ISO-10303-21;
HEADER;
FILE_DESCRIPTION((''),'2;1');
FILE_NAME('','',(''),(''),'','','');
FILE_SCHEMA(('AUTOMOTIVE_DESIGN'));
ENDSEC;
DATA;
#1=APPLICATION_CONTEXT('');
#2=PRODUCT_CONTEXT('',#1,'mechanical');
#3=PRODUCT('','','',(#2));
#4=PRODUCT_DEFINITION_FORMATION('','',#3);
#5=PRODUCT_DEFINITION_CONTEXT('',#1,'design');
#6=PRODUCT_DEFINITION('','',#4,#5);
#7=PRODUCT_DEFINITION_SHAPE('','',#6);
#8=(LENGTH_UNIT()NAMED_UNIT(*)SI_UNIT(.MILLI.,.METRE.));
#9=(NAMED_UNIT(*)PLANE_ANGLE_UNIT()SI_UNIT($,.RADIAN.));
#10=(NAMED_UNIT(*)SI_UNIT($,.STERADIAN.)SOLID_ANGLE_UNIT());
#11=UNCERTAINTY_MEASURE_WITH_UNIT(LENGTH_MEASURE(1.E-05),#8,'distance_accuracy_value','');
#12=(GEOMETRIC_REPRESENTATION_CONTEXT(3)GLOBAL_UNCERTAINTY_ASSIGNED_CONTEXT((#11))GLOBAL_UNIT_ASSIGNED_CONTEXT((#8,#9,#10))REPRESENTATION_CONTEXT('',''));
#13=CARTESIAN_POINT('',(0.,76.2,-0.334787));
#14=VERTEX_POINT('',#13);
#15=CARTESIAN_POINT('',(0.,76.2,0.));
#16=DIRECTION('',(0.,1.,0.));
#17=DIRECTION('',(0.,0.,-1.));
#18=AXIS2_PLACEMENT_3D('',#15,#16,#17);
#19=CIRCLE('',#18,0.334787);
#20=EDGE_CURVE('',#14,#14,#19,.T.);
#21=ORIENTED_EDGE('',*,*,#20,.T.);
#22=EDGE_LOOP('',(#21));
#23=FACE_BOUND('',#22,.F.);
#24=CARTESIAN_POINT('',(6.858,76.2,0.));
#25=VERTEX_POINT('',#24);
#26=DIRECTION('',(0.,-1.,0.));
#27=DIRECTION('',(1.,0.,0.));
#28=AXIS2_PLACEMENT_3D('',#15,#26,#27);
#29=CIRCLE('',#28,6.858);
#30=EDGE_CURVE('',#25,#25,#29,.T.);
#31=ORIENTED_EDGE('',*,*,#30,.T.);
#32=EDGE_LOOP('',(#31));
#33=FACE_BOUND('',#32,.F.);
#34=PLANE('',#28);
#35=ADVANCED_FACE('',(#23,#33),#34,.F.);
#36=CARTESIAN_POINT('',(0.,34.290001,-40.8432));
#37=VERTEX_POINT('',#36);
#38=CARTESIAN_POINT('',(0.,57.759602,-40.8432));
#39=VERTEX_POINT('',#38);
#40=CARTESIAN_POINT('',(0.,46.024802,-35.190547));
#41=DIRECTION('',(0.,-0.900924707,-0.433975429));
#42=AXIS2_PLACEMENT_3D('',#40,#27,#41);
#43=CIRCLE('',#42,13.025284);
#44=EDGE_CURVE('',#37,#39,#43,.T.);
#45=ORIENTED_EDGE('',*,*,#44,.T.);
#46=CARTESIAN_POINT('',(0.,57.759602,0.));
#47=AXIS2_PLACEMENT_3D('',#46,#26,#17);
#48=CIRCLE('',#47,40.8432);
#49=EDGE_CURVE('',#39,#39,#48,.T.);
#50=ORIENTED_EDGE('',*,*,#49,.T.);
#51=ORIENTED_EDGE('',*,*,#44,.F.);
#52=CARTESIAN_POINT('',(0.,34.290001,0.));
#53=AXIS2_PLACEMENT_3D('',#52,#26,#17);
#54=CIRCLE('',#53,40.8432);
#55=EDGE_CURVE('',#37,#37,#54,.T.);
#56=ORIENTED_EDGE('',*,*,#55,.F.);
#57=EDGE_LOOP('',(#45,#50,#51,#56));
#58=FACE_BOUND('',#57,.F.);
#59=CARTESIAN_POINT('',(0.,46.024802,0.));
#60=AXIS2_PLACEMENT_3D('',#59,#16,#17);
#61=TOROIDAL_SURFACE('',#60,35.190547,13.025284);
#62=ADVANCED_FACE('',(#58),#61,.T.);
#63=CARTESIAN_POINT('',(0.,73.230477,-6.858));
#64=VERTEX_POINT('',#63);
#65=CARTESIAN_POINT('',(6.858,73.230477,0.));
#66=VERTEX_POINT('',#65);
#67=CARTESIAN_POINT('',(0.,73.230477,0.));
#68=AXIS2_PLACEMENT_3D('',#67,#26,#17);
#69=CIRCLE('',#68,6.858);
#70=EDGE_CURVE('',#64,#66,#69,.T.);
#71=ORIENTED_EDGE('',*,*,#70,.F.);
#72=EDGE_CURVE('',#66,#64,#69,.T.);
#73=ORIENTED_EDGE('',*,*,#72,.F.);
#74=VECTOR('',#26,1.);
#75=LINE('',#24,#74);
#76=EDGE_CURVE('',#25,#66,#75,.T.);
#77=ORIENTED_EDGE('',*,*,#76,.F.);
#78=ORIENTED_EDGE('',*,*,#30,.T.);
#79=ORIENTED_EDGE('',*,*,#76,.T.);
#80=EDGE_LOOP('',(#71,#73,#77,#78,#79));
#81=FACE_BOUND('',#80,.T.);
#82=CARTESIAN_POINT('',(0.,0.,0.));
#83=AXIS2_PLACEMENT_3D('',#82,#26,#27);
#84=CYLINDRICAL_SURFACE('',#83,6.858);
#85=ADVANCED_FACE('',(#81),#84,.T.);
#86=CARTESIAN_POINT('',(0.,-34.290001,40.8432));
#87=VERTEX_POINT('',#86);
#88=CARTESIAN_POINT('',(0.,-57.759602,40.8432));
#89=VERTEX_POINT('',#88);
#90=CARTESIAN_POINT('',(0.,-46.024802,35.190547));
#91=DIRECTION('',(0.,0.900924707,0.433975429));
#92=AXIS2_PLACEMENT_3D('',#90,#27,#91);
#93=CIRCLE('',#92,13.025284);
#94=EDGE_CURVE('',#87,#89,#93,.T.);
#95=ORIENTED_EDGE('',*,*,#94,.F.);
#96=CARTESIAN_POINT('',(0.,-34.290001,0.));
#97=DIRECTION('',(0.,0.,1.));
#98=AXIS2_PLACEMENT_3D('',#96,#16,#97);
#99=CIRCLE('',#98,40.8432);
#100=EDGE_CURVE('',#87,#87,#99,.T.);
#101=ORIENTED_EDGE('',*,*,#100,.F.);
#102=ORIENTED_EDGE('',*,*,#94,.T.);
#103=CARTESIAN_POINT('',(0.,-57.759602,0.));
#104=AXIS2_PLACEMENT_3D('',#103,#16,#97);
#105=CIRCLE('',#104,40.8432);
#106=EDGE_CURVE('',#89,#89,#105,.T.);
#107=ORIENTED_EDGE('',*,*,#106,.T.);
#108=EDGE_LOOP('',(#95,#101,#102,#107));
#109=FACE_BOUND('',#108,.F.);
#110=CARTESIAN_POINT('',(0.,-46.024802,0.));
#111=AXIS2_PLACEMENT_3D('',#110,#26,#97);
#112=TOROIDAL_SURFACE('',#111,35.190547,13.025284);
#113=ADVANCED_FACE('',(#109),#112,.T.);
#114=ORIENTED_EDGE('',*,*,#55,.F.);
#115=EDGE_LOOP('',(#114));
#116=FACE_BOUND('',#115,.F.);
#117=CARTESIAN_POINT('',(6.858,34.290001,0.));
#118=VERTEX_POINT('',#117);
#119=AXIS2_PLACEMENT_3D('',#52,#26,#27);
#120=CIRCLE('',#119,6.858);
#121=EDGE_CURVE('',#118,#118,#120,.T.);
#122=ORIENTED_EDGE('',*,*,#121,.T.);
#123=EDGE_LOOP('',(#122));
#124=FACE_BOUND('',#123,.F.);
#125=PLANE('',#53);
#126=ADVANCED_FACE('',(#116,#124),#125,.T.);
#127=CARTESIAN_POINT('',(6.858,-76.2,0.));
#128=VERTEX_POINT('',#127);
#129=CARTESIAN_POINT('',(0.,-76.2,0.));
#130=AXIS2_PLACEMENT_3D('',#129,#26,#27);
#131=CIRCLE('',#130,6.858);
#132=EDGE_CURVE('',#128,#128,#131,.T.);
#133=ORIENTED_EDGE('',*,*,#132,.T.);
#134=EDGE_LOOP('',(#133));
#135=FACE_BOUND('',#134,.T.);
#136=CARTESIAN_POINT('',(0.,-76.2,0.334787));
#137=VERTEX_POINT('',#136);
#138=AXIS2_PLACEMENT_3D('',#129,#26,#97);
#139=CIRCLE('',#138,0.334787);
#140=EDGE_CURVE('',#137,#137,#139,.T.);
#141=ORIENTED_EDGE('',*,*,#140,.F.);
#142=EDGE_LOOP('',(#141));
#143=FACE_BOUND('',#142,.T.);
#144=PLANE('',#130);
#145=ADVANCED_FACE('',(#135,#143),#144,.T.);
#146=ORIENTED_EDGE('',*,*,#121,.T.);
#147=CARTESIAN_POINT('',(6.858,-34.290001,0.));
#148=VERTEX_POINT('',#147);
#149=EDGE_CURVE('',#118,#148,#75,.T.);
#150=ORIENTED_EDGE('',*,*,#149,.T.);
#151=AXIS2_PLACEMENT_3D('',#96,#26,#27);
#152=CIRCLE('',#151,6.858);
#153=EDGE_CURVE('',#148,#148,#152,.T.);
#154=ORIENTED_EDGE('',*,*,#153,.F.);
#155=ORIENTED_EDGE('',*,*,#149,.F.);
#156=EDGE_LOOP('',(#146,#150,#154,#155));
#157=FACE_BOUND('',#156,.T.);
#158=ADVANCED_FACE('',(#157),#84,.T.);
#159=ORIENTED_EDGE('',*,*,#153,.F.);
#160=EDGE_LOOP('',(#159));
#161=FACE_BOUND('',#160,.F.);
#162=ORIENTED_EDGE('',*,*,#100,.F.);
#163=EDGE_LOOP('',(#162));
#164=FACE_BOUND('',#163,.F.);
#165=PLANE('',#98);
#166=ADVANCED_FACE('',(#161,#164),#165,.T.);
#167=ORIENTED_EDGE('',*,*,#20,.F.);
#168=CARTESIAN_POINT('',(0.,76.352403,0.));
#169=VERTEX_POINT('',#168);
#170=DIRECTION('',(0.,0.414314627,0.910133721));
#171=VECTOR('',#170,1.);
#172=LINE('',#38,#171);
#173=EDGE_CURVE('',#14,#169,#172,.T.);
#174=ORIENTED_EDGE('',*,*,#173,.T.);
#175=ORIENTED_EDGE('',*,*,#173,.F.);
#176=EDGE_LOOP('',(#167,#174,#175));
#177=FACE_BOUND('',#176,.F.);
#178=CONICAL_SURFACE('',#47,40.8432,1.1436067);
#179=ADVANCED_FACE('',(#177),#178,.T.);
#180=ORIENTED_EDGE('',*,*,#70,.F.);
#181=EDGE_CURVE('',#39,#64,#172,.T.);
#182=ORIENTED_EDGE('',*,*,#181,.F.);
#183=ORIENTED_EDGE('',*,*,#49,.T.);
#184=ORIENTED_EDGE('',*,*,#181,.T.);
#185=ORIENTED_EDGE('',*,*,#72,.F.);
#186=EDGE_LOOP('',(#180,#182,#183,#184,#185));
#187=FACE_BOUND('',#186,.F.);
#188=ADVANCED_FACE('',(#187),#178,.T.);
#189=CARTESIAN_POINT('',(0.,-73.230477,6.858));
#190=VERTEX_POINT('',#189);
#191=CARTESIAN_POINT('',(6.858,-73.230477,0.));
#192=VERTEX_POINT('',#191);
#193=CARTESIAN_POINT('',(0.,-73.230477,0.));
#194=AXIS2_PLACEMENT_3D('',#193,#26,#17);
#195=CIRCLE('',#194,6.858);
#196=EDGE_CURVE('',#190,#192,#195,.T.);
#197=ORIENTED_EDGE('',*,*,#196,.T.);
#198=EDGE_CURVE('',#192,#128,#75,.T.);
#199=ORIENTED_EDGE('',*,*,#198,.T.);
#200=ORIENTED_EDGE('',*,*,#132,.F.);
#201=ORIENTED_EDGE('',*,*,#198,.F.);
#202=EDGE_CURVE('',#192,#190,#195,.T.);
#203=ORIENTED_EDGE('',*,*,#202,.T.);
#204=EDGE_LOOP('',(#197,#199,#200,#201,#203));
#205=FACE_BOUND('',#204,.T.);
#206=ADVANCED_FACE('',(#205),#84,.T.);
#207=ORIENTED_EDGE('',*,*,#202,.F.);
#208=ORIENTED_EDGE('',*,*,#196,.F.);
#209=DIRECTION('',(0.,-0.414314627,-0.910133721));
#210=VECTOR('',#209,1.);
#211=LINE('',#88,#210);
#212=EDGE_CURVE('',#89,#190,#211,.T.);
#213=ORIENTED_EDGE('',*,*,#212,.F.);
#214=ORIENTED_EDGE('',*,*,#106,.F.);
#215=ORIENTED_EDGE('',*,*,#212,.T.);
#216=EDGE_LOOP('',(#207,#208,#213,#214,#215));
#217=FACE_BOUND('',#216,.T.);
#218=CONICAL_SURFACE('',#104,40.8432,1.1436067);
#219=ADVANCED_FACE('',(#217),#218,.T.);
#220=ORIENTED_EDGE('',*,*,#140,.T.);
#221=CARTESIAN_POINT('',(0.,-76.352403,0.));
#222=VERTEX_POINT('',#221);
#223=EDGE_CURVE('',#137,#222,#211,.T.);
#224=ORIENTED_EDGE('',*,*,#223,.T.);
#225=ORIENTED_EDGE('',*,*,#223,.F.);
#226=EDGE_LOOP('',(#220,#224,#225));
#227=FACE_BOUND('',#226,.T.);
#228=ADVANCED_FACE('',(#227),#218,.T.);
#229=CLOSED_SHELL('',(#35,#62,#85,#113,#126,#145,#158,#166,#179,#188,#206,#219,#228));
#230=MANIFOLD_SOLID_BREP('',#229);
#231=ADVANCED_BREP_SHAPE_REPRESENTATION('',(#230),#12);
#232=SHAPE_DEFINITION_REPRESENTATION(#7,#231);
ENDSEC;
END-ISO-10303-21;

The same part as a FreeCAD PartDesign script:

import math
import FreeCAD as App
import Part
import Sketcher
from FreeCAD import Vector
Q = App.Units.Quantity


def add_polygon(sketch, points):
    """Adds a closed chain of lines whose ends are joined by coincident constraints."""
    first, n = sketch.GeometryCount, len(points)
    for a, b in zip(points, points[1:] + points[:1]):
        sketch.addGeometry(Part.LineSegment(App.Vector(*a, 0), App.Vector(*b, 0)), False)
    for i in range(n):
        sketch.addConstraint(Sketcher.Constraint("Coincident", first + i, 2, first + (i + 1) % n, 1))

doc = App.newDocument("Part")
body = doc.addObject("PartDesign::Body", "Body")

sketch1 = doc.addObject("Sketcher::SketchObject", "Sketch")
body.addObject(sketch1)
sketch1.AttachmentSupport = (doc.XZ_Plane, [""])
sketch1.MapMode = "FlatFace"
sketch1.addGeometry(Part.Circle(Vector(0, 0, 0), Vector(0, 0, 1), 7), False)
sketch1.addConstraint([
    Sketcher.Constraint("Coincident", 0, 3, -1, 1),
    Sketcher.Constraint("Diameter", 0, Q("0.54 in")),
])
pad1 = doc.addObject("PartDesign::Pad", "Pad")
body.addObject(pad1)
pad1.Profile = sketch1
pad1.Type = "TwoLengths"
pad1.Length = Q("3 in")
pad1.Length2 = Q("3 in")

sketch2 = doc.addObject("Sketcher::SketchObject", "Sketch001")
body.addObject(sketch2)
sketch2.AttachmentSupport = (doc.YZ_Plane, [""])
sketch2.MapMode = "FlatFace"
sketch2.addGeometry([
    Part.LineSegment(Vector(-58, 0, 0), Vector(-34, 0, 0)),
    Part.LineSegment(Vector(-34, 0, 0), Vector(-34, 41, 0)),
    Part.ArcOfCircle(Part.Circle(Vector(-46, 35, 0), Vector(0, 0, 1), 13), math.radians(26), math.radians(154)),
    Part.LineSegment(Vector(-58, 41, 0), Vector(-58, 0, 0)),
], False)
sketch2.addConstraint([
    Sketcher.Constraint("Coincident", 0, 2, 1, 1),
    Sketcher.Constraint("Coincident", 1, 2, 2, 1),
    Sketcher.Constraint("Coincident", 2, 2, 3, 1),
    Sketcher.Constraint("Coincident", 3, 2, 0, 1),
    Sketcher.Constraint("Horizontal", 0),
    Sketcher.Constraint("Vertical", 1),
    Sketcher.Constraint("Vertical", 3),
    Sketcher.Constraint("PointOnObject", 0, 2, -1),
    Sketcher.Constraint("Horizontal", 1, 2, 2, 2),
    Sketcher.Constraint("DistanceX", 0, 1, 0, 2, Q("0.924 in")),
    Sketcher.Constraint("DistanceY", 1, 1, 1, 2, Q("1.608 in")),
    Sketcher.Constraint("DistanceX", 0, 2, -1, 1, Q("1.35 in")),
    Sketcher.Constraint("Radius", 2, 13.025284),
])
revolution = doc.addObject("PartDesign::Revolution", "Revolution")
body.addObject(revolution)
revolution.Profile = sketch2
revolution.ReferenceAxis = (sketch2, ["H_Axis"])
revolution.Angle = 360

sketch3 = doc.addObject("Sketcher::SketchObject", "Sketch002")
body.addObject(sketch3)
sketch3.AttachmentSupport = (doc.YZ_Plane, [""])
sketch3.MapMode = "FlatFace"
sketch3.addGeometry([
    Part.LineSegment(Vector(58, 0, 0), Vector(34, 0, 0)),
    Part.LineSegment(Vector(34, 0, 0), Vector(34, -41, 0)),
    Part.ArcOfCircle(Part.Circle(Vector(46, -35, 0), Vector(0, 0, 1), 13), math.radians(-154), math.radians(-26)),
    Part.LineSegment(Vector(58, -41, 0), Vector(58, 0, 0)),
], False)
sketch3.addConstraint([
    Sketcher.Constraint("Coincident", 0, 2, 1, 1),
    Sketcher.Constraint("Coincident", 1, 2, 2, 1),
    Sketcher.Constraint("Coincident", 2, 2, 3, 1),
    Sketcher.Constraint("Coincident", 3, 2, 0, 1),
    Sketcher.Constraint("Horizontal", 0),
    Sketcher.Constraint("Vertical", 1),
    Sketcher.Constraint("Vertical", 3),
    Sketcher.Constraint("PointOnObject", 0, 2, -1),
    Sketcher.Constraint("Horizontal", 1, 2, 2, 2),
    Sketcher.Constraint("DistanceX", 0, 2, 0, 1, Q("0.924 in")),
    Sketcher.Constraint("DistanceY", 1, 2, 1, 1, Q("1.608 in")),
    Sketcher.Constraint("DistanceX", -1, 1, 0, 2, Q("1.35 in")),
    Sketcher.Constraint("Radius", 2, 13.025284),
])
revolution2 = doc.addObject("PartDesign::Revolution", "Revolution001")
body.addObject(revolution2)
revolution2.Profile = sketch3
revolution2.ReferenceAxis = (sketch3, ["H_Axis"])
revolution2.Angle = 360

sketch4 = doc.addObject("Sketcher::SketchObject", "Sketch003")
body.addObject(sketch4)
sketch4.AttachmentSupport = (doc.YZ_Plane, [""])
sketch4.MapMode = "FlatFace"
add_polygon(sketch4, [(76, 0), (58, 0), (58, -41)])
sketch4.addConstraint([
    Sketcher.Constraint("Horizontal", 0),
    Sketcher.Constraint("Vertical", 1),
    Sketcher.Constraint("PointOnObject", 0, 2, -1),
    Sketcher.Constraint("DistanceX", 0, 2, 0, 1, Q("0.732 in")),
    Sketcher.Constraint("DistanceY", 1, 2, 1, 1, Q("1.608 in")),
    Sketcher.Constraint("DistanceX", -1, 1, 0, 2, Q("2.2740001 in")),
])
revolution3 = doc.addObject("PartDesign::Revolution", "Revolution002")
body.addObject(revolution3)
revolution3.Profile = sketch4
revolution3.ReferenceAxis = (sketch4, ["H_Axis"])
revolution3.Angle = 360

sketch5 = doc.addObject("Sketcher::SketchObject", "Sketch004")
body.addObject(sketch5)
sketch5.AttachmentSupport = (doc.YZ_Plane, [""])
sketch5.MapMode = "FlatFace"
add_polygon(sketch5, [(-76, 0), (-58, 0), (-58, 41)])
sketch5.addConstraint([
    Sketcher.Constraint("Horizontal", 0),
    Sketcher.Constraint("Vertical", 1),
    Sketcher.Constraint("PointOnObject", 0, 2, -1),
    Sketcher.Constraint("DistanceX", 0, 1, 0, 2, Q("0.732 in")),
    Sketcher.Constraint("DistanceY", 1, 1, 1, 2, Q("1.608 in")),
    Sketcher.Constraint("DistanceX", 0, 2, -1, 1, Q("2.2740001 in")),
])
revolution4 = doc.addObject("PartDesign::Revolution", "Revolution003")
body.addObject(revolution4)
revolution4.Profile = sketch5
revolution4.ReferenceAxis = (sketch5, ["H_Axis"])
revolution4.Angle = 360

doc.recompute()
